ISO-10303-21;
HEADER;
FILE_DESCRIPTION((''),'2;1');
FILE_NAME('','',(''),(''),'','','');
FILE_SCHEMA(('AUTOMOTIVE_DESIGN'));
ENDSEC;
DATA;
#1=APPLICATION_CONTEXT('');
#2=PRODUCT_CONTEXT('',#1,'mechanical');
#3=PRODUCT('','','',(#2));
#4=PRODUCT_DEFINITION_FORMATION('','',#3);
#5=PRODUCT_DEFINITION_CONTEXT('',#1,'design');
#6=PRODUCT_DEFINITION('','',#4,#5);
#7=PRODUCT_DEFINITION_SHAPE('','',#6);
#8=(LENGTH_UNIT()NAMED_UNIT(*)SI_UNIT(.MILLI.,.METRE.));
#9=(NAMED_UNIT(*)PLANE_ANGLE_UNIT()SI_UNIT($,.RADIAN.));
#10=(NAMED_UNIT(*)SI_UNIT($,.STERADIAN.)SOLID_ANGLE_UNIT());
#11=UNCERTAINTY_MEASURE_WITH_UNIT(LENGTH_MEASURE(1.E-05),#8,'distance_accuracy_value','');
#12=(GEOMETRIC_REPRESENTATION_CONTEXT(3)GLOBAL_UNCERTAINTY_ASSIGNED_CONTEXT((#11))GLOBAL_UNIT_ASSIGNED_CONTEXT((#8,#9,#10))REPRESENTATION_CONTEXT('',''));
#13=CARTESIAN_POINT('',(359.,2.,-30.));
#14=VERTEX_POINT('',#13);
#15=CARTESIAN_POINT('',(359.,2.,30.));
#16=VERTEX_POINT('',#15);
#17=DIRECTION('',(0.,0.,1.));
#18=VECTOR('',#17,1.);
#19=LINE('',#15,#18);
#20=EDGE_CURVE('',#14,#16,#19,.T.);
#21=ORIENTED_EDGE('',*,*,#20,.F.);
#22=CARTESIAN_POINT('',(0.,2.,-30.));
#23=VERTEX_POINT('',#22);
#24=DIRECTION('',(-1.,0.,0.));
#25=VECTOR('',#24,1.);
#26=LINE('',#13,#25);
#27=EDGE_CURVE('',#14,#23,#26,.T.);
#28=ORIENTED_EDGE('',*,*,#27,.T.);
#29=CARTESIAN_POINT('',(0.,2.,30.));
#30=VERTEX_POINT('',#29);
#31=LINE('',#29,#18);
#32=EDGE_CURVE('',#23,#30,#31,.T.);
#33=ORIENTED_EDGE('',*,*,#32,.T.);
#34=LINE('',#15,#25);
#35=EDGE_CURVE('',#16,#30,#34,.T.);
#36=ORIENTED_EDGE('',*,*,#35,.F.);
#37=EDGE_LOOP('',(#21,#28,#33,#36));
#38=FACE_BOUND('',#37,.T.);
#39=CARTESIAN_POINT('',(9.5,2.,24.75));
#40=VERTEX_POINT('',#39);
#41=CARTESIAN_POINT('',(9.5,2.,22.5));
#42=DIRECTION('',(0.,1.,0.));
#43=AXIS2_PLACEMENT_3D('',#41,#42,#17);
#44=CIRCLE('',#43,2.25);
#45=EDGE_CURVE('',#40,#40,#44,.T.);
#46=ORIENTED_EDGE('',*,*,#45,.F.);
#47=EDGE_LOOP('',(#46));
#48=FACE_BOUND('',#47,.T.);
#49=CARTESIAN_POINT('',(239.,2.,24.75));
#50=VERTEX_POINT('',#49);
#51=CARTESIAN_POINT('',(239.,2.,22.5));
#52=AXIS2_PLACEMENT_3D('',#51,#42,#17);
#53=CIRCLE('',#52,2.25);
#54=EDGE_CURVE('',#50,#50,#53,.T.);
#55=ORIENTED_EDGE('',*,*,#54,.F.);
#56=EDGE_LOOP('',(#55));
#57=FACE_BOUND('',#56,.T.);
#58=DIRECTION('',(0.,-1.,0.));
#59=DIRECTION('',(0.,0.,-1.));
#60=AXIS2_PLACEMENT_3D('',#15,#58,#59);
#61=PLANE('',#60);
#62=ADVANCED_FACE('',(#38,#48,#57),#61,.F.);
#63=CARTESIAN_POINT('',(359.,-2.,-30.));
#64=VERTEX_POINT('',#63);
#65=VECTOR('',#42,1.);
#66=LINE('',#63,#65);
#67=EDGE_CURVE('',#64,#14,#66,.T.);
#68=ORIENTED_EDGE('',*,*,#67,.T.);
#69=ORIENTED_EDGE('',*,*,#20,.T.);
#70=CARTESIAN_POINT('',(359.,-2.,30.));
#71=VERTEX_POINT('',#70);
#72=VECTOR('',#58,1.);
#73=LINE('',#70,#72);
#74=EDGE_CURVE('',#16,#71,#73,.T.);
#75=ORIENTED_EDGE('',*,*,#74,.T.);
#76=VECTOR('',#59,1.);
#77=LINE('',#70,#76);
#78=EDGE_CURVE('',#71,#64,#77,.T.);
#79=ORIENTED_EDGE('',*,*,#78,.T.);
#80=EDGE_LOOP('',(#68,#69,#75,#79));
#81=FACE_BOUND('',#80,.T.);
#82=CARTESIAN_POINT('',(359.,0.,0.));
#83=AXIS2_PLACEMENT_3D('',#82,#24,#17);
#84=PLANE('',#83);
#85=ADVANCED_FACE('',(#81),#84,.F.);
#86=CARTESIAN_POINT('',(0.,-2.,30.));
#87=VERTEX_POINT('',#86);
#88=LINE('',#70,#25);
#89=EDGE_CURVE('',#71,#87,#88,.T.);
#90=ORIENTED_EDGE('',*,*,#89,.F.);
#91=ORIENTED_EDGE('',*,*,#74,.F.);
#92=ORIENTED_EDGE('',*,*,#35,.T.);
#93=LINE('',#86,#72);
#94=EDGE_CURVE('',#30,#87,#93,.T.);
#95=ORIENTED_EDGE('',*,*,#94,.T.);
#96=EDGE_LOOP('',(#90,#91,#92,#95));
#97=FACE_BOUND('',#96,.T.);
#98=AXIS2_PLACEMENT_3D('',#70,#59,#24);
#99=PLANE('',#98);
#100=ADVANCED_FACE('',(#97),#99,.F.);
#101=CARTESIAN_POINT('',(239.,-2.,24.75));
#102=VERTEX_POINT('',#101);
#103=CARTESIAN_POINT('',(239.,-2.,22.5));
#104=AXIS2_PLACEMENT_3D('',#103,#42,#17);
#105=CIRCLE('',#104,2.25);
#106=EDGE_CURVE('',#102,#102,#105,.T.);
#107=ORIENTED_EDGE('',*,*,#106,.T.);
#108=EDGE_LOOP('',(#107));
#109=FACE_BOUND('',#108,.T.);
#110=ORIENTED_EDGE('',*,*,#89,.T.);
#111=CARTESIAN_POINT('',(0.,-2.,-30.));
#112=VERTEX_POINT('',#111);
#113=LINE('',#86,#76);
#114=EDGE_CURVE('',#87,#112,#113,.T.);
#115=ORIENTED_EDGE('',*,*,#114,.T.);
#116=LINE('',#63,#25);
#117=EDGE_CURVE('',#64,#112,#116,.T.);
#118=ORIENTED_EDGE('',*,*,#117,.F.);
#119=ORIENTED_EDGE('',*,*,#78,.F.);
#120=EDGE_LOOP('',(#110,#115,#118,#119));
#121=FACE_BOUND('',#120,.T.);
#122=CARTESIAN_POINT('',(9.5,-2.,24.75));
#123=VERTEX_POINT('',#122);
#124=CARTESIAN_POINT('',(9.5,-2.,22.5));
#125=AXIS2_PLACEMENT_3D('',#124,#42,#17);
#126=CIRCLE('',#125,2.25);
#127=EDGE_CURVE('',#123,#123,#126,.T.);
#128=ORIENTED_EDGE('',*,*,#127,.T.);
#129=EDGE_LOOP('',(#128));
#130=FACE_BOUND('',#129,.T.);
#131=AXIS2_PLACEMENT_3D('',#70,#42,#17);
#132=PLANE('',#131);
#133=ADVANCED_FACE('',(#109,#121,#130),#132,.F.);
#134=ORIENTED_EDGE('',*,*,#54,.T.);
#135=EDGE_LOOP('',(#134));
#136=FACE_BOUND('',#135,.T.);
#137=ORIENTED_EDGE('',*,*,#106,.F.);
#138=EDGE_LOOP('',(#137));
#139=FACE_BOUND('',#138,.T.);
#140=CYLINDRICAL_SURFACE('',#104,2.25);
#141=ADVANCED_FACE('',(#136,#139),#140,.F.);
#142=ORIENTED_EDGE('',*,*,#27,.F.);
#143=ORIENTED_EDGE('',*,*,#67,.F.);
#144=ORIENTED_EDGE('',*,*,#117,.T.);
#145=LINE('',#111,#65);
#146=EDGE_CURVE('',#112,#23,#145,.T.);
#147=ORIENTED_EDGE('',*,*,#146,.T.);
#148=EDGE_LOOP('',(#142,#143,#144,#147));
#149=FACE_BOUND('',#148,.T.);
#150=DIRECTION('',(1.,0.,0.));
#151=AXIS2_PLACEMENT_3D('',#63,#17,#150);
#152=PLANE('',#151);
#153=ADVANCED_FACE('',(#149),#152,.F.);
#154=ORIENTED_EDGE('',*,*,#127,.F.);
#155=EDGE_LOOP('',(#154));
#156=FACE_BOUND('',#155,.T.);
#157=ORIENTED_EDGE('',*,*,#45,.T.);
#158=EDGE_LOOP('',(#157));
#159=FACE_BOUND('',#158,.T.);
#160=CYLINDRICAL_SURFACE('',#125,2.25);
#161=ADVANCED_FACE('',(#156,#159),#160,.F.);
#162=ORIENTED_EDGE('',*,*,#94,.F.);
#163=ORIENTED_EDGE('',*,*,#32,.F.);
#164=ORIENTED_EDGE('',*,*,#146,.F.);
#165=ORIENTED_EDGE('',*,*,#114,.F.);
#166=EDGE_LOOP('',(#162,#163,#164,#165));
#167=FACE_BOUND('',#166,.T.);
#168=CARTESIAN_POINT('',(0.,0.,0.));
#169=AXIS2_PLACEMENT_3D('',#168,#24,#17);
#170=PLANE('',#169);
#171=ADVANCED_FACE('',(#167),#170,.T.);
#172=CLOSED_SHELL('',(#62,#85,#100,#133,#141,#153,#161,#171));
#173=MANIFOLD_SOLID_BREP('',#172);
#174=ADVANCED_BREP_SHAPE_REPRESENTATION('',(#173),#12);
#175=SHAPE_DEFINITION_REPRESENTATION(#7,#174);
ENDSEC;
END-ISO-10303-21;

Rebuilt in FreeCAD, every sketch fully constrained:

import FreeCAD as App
import Part
import Sketcher
from FreeCAD import Vector
Q = App.Units.Quantity

doc = App.newDocument("Part")
body = doc.addObject("PartDesign::Body", "Body")

sketch1 = body.newObject("Sketcher::SketchObject", "Sketch")
sketch1.AttachmentSupport = (doc.getObject("YZ_Plane"), [""])
sketch1.MapMode = "FlatFace"
sketch1.addGeometry([
    Part.LineSegment(Vector(2, 30, 0), Vector(-2, 30, 0)),
    Part.LineSegment(Vector(-2, 30, 0), Vector(-2, -30, 0)),
    Part.LineSegment(Vector(-2, -30, 0), Vector(2, -30, 0)),
    Part.LineSegment(Vector(2, -30, 0), Vector(2, 30, 0)),
], False)
sketch1.addConstraint([
    Sketcher.Constraint("Coincident", 0, 2, 1, 1),
    Sketcher.Constraint("Coincident", 1, 2, 2, 1),
    Sketcher.Constraint("Coincident", 2, 2, 3, 1),
    Sketcher.Constraint("Coincident", 3, 2, 0, 1),
    Sketcher.Constraint("Horizontal", 0),
    Sketcher.Constraint("Vertical", 1),
    Sketcher.Constraint("Horizontal", 2),
    Sketcher.Constraint("Vertical", 3),
    Sketcher.Constraint("Symmetric", 0, 2, 2, 2, -1, 1),
    Sketcher.Constraint("DistanceX", 0, 2, 0, 1, Q("4 mm")),
    Sketcher.Constraint("DistanceY", 1, 2, 1, 1, Q("60 mm")),
])
pad1 = body.newObject("PartDesign::Pad", "Pad")
pad1.Profile = sketch1
pad1.Length = 359

sketch2 = body.newObject("Sketcher::SketchObject", "Sketch001")
sketch2.AttachmentSupport = (doc.getObject("XZ_Plane"), [""])
sketch2.MapMode = "FlatFace"
sketch2.AttachmentOffset = App.Placement(Vector(0, 0, -2), App.Rotation())
sketch2.addGeometry([
    Part.Circle(Vector(9.5, 22.5, 0), Vector(0, 0, 1), 2.2),
    Part.Circle(Vector(239, 22.5, 0), Vector(0, 0, 1), 2.2),
], False)
sketch2.addConstraint([
    Sketcher.Constraint("Equal", 0, 1),
    Sketcher.Constraint("Horizontal", 0, 3, 1, 3),
    Sketcher.Constraint("Diameter", 0, Q("4.5 mm")),
    Sketcher.Constraint("DistanceX", -1, 1, 1, 3, Q("239 mm")),
    Sketcher.Constraint("DistanceX", -1, 1, 0, 3, Q("9.5 mm")),
    Sketcher.Constraint("DistanceY", -1, 1, 0, 3, Q("22.5 mm")),
])
pocket1 = body.newObject("PartDesign::Pocket", "Pocket")
pocket1.Profile = sketch2
pocket1.Type = "ThroughAll"
pocket1.Reversed = True

doc.recompute()
